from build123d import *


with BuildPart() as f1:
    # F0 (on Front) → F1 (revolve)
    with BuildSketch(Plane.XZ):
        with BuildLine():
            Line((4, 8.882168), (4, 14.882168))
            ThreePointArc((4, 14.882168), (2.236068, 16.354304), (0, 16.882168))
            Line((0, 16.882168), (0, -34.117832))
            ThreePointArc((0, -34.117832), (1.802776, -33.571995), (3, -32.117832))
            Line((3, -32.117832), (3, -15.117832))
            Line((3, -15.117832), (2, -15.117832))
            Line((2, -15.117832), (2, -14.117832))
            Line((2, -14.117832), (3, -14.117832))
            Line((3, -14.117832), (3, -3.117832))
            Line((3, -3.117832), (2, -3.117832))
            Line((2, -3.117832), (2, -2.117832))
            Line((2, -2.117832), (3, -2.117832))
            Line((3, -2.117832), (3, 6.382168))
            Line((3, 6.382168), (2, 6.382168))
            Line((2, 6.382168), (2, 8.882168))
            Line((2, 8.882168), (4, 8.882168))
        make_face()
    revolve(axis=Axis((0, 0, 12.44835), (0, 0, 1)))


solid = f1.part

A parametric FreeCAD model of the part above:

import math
import FreeCAD as App
import Part
import Sketcher

doc = App.newDocument("Part")
body = doc.addObject("PartDesign::Body", "Body")

sketch1 = body.newObject("Sketcher::SketchObject", "Sketch")
sketch1.AttachmentSupport = (doc.getObject("XZ_Plane"), [""])
sketch1.MapMode = "FlatFace"
sketch1.addGeometry([
    Part.LineSegment(App.Vector(4, 8.9, 0), App.Vector(4, 14.9, 0)),
    Part.ArcOfCircle(Part.Circle(App.Vector(0, 11.9, 0), App.Vector(0, 0, 1), 5), math.radians(37), math.radians(90)),
    Part.LineSegment(App.Vector(0, 16.9, 0), App.Vector(0, -34.1, 0)),
    Part.ArcOfCircle(Part.Circle(App.Vector(0, -30.9, 0), App.Vector(0, 0, 1), 3.3), math.radians(-90), math.radians(-23)),
    Part.LineSegment(App.Vector(3, -32.1, 0), App.Vector(3, -15.1, 0)),
    Part.LineSegment(App.Vector(3, -15.1, 0), App.Vector(2, -15.1, 0)),
    Part.LineSegment(App.Vector(2, -15.1, 0), App.Vector(2, -14.1, 0)),
    Part.LineSegment(App.Vector(2, -14.1, 0), App.Vector(3, -14.1, 0)),
    Part.LineSegment(App.Vector(3, -14.1, 0), App.Vector(3, -3.1, 0)),
    Part.LineSegment(App.Vector(3, -3.1, 0), App.Vector(2, -3.1, 0)),
    Part.LineSegment(App.Vector(2, -3.1, 0), App.Vector(2, -2.1, 0)),
    Part.LineSegment(App.Vector(2, -2.1, 0), App.Vector(3, -2.1, 0)),
    Part.LineSegment(App.Vector(3, -2.1, 0), App.Vector(3, 6.4, 0)),
    Part.LineSegment(App.Vector(3, 6.4, 0), App.Vector(2, 6.4, 0)),
    Part.LineSegment(App.Vector(2, 6.4, 0), App.Vector(2, 8.9, 0)),
    Part.LineSegment(App.Vector(2, 8.9, 0), App.Vector(4, 8.9, 0)),
], False)
sketch1.addConstraint([
    Sketcher.Constraint("Coincident", 0, 2, 1, 1),
    Sketcher.Constraint("Coincident", 1, 2, 2, 1),
    Sketcher.Constraint("Coincident", 2, 2, 3, 1),
    Sketcher.Constraint("Coincident", 3, 2, 4, 1),
    Sketcher.Constraint("Coincident", 4, 2, 5, 1),
    Sketcher.Constraint("Coincident", 5, 2, 6, 1),
    Sketcher.Constraint("Coincident", 6, 2, 7, 1),
    Sketcher.Constraint("Coincident", 7, 2, 8, 1),
    Sketcher.Constraint("Coincident", 8, 2, 9, 1),
    Sketcher.Constraint("Coincident", 9, 2, 10, 1),
    Sketcher.Constraint("Coincident", 10, 2, 11, 1),
    Sketcher.Constraint("Coincident", 11, 2, 12, 1),
    Sketcher.Constraint("Coincident", 12, 2, 13, 1),
    Sketcher.Constraint("Coincident", 13, 2, 14, 1),
    Sketcher.Constraint("Coincident", 14, 2, 15, 1),
    Sketcher.Constraint("Coincident", 15, 2, 0, 1),
    Sketcher.Constraint("Vertical", 0),
    Sketcher.Constraint("Vertical", 2),
    Sketcher.Constraint("Vertical", 4),
    Sketcher.Constraint("Horizontal", 5),
    Sketcher.Constraint("Vertical", 6),
    Sketcher.Constraint("Horizontal", 7),
    Sketcher.Constraint("Vertical", 8),
    Sketcher.Constraint("Horizontal", 9),
    Sketcher.Constraint("Vertical", 10),
    Sketcher.Constraint("Horizontal", 11),
    Sketcher.Constraint("Vertical", 12),
    Sketcher.Constraint("Horizontal", 13),
    Sketcher.Constraint("Vertical", 14),
    Sketcher.Constraint("Horizontal", 15),
    Sketcher.Constraint("PointOnObject", 1, 3, -2),
    Sketcher.Constraint("PointOnObject", 3, 3, -2),
    Sketcher.Constraint("PointOnObject", 1, 2, -2),
    Sketcher.Constraint("Vertical", 4, 2, 7, 2),
    Sketcher.Constraint("Vertical", 6, 2, 9, 2),
    Sketcher.Constraint("Vertical", 8, 2, 11, 2),
    Sketcher.Constraint("Vertical", 10, 2, 13, 2),
    Sketcher.Constraint("Equal", 13, 6),
    Sketcher.Constraint("Equal", 6, 10),
    Sketcher.Constraint("Radius", 1, 5.0),
    Sketcher.Constraint("DistanceX", 5, 2, 5, 1, 1.0),
    Sketcher.Constraint("DistanceX", 15, 1, 15, 2, 2.0),
    Sketcher.Constraint("DistanceY", 0, 1, 0, 2, 6.0),
    Sketcher.Constraint("DistanceY", 2, 2, 2, 1, 51.0),
    Sketcher.Constraint("DistanceY", 4, 1, 4, 2, 17.0),
    Sketcher.Constraint("DistanceY", 8, 1, 8, 2, 11.0),
    Sketcher.Constraint("Radius", 3, 3.250001),
    Sketcher.Constraint("DistanceY", 12, 1, 12, 2, 8.5),
    Sketcher.Constraint("DistanceY", 14, 1, 14, 2, 2.5),
    Sketcher.Constraint("DistanceY", -1, 1, 1, 3, 11.882168),
])
revolution = body.newObject("PartDesign::Revolution", "Revolution")
revolution.Profile = sketch1
revolution.ReferenceAxis = (sketch1, ["V_Axis"])
revolution.Angle = 360

doc.recompute()
